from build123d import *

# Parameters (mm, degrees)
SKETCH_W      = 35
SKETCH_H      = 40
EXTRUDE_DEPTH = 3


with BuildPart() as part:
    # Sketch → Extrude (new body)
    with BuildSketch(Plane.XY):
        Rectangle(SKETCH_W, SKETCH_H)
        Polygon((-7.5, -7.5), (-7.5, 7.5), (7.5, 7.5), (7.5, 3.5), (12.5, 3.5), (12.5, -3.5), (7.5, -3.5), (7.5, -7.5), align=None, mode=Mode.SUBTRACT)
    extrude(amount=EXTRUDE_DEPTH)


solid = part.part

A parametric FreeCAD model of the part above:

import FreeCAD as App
import Part
import Sketcher

V = App.Vector


def add_polygon(sketch, points):
    """Adds a closed chain of lines whose ends are joined by coincident constraints."""
    first, n = sketch.GeometryCount, len(points)
    for a, b in zip(points, points[1:] + points[:1]):
        sketch.addGeometry(Part.LineSegment(App.Vector(*a, 0), App.Vector(*b, 0)), False)
    for i in range(n):
        sketch.addConstraint(Sketcher.Constraint("Coincident", first + i, 2, first + (i + 1) % n, 1))

doc = App.newDocument("Part")
body = doc.addObject("PartDesign::Body", "Body")

sketch1 = doc.addObject("Sketcher::SketchObject", "Sketch")
body.addObject(sketch1)
sketch1.AttachmentSupport = (doc.XY_Plane, [""])
sketch1.MapMode = "FlatFace"
add_polygon(sketch1, [(-17.5, 20), (-17.5, -20), (17.5, -20), (17.5, 20)])
add_polygon(sketch1, [(7.5, -7.5), (-7.5, -7.5), (-7.5, 7.5), (7.5, 7.5), (7.5, 3.5), (12.5, 3.5), (12.5, -3.5), (7.5, -3.5)])
sketch1.addConstraint(Sketcher.Constraint("Vertical", 0))
sketch1.addConstraint(Sketcher.Constraint("Horizontal", 1))
sketch1.addConstraint(Sketcher.Constraint("Vertical", 2))
sketch1.addConstraint(Sketcher.Constraint("Horizontal", 3))
sketch1.addConstraint(Sketcher.Constraint("Horizontal", 4))
sketch1.addConstraint(Sketcher.Constraint("Vertical", 5))
sketch1.addConstraint(Sketcher.Constraint("Horizontal", 6))
sketch1.addConstraint(Sketcher.Constraint("Vertical", 7))
sketch1.addConstraint(Sketcher.Constraint("Horizontal", 8))
sketch1.addConstraint(Sketcher.Constraint("Vertical", 9))
sketch1.addConstraint(Sketcher.Constraint("Horizontal", 10))
sketch1.addConstraint(Sketcher.Constraint("Vertical", 11))
sketch1.addConstraint(Sketcher.Constraint("Symmetric", 0, 2, 2, 2, -1, 1))
sketch1.addConstraint(Sketcher.Constraint("Symmetric", 4, 2, 6, 2, -1, 1))
sketch1.addConstraint(Sketcher.Constraint("Symmetric", 7, 2, 10, 2, -1))
sketch1.addConstraint(Sketcher.Constraint("Equal", 6, 5))
sketch1.addConstraint(Sketcher.Constraint("DistanceX", 1, 1, 1, 2, 35.0))
sketch1.addConstraint(Sketcher.Constraint("DistanceX", 4, 2, 4, 1, 15.0))
sketch1.addConstraint(Sketcher.Constraint("DistanceX", 8, 1, 8, 2, 5.0))
sketch1.addConstraint(Sketcher.Constraint("DistanceY", 0, 2, 0, 1, 40.0))
sketch1.addConstraint(Sketcher.Constraint("DistanceY", 7, 2, 7, 1, 4.0))
pad1 = doc.addObject("PartDesign::Pad", "Pad")
body.addObject(pad1)
pad1.Profile = sketch1
pad1.Length = 3

doc.recompute()
